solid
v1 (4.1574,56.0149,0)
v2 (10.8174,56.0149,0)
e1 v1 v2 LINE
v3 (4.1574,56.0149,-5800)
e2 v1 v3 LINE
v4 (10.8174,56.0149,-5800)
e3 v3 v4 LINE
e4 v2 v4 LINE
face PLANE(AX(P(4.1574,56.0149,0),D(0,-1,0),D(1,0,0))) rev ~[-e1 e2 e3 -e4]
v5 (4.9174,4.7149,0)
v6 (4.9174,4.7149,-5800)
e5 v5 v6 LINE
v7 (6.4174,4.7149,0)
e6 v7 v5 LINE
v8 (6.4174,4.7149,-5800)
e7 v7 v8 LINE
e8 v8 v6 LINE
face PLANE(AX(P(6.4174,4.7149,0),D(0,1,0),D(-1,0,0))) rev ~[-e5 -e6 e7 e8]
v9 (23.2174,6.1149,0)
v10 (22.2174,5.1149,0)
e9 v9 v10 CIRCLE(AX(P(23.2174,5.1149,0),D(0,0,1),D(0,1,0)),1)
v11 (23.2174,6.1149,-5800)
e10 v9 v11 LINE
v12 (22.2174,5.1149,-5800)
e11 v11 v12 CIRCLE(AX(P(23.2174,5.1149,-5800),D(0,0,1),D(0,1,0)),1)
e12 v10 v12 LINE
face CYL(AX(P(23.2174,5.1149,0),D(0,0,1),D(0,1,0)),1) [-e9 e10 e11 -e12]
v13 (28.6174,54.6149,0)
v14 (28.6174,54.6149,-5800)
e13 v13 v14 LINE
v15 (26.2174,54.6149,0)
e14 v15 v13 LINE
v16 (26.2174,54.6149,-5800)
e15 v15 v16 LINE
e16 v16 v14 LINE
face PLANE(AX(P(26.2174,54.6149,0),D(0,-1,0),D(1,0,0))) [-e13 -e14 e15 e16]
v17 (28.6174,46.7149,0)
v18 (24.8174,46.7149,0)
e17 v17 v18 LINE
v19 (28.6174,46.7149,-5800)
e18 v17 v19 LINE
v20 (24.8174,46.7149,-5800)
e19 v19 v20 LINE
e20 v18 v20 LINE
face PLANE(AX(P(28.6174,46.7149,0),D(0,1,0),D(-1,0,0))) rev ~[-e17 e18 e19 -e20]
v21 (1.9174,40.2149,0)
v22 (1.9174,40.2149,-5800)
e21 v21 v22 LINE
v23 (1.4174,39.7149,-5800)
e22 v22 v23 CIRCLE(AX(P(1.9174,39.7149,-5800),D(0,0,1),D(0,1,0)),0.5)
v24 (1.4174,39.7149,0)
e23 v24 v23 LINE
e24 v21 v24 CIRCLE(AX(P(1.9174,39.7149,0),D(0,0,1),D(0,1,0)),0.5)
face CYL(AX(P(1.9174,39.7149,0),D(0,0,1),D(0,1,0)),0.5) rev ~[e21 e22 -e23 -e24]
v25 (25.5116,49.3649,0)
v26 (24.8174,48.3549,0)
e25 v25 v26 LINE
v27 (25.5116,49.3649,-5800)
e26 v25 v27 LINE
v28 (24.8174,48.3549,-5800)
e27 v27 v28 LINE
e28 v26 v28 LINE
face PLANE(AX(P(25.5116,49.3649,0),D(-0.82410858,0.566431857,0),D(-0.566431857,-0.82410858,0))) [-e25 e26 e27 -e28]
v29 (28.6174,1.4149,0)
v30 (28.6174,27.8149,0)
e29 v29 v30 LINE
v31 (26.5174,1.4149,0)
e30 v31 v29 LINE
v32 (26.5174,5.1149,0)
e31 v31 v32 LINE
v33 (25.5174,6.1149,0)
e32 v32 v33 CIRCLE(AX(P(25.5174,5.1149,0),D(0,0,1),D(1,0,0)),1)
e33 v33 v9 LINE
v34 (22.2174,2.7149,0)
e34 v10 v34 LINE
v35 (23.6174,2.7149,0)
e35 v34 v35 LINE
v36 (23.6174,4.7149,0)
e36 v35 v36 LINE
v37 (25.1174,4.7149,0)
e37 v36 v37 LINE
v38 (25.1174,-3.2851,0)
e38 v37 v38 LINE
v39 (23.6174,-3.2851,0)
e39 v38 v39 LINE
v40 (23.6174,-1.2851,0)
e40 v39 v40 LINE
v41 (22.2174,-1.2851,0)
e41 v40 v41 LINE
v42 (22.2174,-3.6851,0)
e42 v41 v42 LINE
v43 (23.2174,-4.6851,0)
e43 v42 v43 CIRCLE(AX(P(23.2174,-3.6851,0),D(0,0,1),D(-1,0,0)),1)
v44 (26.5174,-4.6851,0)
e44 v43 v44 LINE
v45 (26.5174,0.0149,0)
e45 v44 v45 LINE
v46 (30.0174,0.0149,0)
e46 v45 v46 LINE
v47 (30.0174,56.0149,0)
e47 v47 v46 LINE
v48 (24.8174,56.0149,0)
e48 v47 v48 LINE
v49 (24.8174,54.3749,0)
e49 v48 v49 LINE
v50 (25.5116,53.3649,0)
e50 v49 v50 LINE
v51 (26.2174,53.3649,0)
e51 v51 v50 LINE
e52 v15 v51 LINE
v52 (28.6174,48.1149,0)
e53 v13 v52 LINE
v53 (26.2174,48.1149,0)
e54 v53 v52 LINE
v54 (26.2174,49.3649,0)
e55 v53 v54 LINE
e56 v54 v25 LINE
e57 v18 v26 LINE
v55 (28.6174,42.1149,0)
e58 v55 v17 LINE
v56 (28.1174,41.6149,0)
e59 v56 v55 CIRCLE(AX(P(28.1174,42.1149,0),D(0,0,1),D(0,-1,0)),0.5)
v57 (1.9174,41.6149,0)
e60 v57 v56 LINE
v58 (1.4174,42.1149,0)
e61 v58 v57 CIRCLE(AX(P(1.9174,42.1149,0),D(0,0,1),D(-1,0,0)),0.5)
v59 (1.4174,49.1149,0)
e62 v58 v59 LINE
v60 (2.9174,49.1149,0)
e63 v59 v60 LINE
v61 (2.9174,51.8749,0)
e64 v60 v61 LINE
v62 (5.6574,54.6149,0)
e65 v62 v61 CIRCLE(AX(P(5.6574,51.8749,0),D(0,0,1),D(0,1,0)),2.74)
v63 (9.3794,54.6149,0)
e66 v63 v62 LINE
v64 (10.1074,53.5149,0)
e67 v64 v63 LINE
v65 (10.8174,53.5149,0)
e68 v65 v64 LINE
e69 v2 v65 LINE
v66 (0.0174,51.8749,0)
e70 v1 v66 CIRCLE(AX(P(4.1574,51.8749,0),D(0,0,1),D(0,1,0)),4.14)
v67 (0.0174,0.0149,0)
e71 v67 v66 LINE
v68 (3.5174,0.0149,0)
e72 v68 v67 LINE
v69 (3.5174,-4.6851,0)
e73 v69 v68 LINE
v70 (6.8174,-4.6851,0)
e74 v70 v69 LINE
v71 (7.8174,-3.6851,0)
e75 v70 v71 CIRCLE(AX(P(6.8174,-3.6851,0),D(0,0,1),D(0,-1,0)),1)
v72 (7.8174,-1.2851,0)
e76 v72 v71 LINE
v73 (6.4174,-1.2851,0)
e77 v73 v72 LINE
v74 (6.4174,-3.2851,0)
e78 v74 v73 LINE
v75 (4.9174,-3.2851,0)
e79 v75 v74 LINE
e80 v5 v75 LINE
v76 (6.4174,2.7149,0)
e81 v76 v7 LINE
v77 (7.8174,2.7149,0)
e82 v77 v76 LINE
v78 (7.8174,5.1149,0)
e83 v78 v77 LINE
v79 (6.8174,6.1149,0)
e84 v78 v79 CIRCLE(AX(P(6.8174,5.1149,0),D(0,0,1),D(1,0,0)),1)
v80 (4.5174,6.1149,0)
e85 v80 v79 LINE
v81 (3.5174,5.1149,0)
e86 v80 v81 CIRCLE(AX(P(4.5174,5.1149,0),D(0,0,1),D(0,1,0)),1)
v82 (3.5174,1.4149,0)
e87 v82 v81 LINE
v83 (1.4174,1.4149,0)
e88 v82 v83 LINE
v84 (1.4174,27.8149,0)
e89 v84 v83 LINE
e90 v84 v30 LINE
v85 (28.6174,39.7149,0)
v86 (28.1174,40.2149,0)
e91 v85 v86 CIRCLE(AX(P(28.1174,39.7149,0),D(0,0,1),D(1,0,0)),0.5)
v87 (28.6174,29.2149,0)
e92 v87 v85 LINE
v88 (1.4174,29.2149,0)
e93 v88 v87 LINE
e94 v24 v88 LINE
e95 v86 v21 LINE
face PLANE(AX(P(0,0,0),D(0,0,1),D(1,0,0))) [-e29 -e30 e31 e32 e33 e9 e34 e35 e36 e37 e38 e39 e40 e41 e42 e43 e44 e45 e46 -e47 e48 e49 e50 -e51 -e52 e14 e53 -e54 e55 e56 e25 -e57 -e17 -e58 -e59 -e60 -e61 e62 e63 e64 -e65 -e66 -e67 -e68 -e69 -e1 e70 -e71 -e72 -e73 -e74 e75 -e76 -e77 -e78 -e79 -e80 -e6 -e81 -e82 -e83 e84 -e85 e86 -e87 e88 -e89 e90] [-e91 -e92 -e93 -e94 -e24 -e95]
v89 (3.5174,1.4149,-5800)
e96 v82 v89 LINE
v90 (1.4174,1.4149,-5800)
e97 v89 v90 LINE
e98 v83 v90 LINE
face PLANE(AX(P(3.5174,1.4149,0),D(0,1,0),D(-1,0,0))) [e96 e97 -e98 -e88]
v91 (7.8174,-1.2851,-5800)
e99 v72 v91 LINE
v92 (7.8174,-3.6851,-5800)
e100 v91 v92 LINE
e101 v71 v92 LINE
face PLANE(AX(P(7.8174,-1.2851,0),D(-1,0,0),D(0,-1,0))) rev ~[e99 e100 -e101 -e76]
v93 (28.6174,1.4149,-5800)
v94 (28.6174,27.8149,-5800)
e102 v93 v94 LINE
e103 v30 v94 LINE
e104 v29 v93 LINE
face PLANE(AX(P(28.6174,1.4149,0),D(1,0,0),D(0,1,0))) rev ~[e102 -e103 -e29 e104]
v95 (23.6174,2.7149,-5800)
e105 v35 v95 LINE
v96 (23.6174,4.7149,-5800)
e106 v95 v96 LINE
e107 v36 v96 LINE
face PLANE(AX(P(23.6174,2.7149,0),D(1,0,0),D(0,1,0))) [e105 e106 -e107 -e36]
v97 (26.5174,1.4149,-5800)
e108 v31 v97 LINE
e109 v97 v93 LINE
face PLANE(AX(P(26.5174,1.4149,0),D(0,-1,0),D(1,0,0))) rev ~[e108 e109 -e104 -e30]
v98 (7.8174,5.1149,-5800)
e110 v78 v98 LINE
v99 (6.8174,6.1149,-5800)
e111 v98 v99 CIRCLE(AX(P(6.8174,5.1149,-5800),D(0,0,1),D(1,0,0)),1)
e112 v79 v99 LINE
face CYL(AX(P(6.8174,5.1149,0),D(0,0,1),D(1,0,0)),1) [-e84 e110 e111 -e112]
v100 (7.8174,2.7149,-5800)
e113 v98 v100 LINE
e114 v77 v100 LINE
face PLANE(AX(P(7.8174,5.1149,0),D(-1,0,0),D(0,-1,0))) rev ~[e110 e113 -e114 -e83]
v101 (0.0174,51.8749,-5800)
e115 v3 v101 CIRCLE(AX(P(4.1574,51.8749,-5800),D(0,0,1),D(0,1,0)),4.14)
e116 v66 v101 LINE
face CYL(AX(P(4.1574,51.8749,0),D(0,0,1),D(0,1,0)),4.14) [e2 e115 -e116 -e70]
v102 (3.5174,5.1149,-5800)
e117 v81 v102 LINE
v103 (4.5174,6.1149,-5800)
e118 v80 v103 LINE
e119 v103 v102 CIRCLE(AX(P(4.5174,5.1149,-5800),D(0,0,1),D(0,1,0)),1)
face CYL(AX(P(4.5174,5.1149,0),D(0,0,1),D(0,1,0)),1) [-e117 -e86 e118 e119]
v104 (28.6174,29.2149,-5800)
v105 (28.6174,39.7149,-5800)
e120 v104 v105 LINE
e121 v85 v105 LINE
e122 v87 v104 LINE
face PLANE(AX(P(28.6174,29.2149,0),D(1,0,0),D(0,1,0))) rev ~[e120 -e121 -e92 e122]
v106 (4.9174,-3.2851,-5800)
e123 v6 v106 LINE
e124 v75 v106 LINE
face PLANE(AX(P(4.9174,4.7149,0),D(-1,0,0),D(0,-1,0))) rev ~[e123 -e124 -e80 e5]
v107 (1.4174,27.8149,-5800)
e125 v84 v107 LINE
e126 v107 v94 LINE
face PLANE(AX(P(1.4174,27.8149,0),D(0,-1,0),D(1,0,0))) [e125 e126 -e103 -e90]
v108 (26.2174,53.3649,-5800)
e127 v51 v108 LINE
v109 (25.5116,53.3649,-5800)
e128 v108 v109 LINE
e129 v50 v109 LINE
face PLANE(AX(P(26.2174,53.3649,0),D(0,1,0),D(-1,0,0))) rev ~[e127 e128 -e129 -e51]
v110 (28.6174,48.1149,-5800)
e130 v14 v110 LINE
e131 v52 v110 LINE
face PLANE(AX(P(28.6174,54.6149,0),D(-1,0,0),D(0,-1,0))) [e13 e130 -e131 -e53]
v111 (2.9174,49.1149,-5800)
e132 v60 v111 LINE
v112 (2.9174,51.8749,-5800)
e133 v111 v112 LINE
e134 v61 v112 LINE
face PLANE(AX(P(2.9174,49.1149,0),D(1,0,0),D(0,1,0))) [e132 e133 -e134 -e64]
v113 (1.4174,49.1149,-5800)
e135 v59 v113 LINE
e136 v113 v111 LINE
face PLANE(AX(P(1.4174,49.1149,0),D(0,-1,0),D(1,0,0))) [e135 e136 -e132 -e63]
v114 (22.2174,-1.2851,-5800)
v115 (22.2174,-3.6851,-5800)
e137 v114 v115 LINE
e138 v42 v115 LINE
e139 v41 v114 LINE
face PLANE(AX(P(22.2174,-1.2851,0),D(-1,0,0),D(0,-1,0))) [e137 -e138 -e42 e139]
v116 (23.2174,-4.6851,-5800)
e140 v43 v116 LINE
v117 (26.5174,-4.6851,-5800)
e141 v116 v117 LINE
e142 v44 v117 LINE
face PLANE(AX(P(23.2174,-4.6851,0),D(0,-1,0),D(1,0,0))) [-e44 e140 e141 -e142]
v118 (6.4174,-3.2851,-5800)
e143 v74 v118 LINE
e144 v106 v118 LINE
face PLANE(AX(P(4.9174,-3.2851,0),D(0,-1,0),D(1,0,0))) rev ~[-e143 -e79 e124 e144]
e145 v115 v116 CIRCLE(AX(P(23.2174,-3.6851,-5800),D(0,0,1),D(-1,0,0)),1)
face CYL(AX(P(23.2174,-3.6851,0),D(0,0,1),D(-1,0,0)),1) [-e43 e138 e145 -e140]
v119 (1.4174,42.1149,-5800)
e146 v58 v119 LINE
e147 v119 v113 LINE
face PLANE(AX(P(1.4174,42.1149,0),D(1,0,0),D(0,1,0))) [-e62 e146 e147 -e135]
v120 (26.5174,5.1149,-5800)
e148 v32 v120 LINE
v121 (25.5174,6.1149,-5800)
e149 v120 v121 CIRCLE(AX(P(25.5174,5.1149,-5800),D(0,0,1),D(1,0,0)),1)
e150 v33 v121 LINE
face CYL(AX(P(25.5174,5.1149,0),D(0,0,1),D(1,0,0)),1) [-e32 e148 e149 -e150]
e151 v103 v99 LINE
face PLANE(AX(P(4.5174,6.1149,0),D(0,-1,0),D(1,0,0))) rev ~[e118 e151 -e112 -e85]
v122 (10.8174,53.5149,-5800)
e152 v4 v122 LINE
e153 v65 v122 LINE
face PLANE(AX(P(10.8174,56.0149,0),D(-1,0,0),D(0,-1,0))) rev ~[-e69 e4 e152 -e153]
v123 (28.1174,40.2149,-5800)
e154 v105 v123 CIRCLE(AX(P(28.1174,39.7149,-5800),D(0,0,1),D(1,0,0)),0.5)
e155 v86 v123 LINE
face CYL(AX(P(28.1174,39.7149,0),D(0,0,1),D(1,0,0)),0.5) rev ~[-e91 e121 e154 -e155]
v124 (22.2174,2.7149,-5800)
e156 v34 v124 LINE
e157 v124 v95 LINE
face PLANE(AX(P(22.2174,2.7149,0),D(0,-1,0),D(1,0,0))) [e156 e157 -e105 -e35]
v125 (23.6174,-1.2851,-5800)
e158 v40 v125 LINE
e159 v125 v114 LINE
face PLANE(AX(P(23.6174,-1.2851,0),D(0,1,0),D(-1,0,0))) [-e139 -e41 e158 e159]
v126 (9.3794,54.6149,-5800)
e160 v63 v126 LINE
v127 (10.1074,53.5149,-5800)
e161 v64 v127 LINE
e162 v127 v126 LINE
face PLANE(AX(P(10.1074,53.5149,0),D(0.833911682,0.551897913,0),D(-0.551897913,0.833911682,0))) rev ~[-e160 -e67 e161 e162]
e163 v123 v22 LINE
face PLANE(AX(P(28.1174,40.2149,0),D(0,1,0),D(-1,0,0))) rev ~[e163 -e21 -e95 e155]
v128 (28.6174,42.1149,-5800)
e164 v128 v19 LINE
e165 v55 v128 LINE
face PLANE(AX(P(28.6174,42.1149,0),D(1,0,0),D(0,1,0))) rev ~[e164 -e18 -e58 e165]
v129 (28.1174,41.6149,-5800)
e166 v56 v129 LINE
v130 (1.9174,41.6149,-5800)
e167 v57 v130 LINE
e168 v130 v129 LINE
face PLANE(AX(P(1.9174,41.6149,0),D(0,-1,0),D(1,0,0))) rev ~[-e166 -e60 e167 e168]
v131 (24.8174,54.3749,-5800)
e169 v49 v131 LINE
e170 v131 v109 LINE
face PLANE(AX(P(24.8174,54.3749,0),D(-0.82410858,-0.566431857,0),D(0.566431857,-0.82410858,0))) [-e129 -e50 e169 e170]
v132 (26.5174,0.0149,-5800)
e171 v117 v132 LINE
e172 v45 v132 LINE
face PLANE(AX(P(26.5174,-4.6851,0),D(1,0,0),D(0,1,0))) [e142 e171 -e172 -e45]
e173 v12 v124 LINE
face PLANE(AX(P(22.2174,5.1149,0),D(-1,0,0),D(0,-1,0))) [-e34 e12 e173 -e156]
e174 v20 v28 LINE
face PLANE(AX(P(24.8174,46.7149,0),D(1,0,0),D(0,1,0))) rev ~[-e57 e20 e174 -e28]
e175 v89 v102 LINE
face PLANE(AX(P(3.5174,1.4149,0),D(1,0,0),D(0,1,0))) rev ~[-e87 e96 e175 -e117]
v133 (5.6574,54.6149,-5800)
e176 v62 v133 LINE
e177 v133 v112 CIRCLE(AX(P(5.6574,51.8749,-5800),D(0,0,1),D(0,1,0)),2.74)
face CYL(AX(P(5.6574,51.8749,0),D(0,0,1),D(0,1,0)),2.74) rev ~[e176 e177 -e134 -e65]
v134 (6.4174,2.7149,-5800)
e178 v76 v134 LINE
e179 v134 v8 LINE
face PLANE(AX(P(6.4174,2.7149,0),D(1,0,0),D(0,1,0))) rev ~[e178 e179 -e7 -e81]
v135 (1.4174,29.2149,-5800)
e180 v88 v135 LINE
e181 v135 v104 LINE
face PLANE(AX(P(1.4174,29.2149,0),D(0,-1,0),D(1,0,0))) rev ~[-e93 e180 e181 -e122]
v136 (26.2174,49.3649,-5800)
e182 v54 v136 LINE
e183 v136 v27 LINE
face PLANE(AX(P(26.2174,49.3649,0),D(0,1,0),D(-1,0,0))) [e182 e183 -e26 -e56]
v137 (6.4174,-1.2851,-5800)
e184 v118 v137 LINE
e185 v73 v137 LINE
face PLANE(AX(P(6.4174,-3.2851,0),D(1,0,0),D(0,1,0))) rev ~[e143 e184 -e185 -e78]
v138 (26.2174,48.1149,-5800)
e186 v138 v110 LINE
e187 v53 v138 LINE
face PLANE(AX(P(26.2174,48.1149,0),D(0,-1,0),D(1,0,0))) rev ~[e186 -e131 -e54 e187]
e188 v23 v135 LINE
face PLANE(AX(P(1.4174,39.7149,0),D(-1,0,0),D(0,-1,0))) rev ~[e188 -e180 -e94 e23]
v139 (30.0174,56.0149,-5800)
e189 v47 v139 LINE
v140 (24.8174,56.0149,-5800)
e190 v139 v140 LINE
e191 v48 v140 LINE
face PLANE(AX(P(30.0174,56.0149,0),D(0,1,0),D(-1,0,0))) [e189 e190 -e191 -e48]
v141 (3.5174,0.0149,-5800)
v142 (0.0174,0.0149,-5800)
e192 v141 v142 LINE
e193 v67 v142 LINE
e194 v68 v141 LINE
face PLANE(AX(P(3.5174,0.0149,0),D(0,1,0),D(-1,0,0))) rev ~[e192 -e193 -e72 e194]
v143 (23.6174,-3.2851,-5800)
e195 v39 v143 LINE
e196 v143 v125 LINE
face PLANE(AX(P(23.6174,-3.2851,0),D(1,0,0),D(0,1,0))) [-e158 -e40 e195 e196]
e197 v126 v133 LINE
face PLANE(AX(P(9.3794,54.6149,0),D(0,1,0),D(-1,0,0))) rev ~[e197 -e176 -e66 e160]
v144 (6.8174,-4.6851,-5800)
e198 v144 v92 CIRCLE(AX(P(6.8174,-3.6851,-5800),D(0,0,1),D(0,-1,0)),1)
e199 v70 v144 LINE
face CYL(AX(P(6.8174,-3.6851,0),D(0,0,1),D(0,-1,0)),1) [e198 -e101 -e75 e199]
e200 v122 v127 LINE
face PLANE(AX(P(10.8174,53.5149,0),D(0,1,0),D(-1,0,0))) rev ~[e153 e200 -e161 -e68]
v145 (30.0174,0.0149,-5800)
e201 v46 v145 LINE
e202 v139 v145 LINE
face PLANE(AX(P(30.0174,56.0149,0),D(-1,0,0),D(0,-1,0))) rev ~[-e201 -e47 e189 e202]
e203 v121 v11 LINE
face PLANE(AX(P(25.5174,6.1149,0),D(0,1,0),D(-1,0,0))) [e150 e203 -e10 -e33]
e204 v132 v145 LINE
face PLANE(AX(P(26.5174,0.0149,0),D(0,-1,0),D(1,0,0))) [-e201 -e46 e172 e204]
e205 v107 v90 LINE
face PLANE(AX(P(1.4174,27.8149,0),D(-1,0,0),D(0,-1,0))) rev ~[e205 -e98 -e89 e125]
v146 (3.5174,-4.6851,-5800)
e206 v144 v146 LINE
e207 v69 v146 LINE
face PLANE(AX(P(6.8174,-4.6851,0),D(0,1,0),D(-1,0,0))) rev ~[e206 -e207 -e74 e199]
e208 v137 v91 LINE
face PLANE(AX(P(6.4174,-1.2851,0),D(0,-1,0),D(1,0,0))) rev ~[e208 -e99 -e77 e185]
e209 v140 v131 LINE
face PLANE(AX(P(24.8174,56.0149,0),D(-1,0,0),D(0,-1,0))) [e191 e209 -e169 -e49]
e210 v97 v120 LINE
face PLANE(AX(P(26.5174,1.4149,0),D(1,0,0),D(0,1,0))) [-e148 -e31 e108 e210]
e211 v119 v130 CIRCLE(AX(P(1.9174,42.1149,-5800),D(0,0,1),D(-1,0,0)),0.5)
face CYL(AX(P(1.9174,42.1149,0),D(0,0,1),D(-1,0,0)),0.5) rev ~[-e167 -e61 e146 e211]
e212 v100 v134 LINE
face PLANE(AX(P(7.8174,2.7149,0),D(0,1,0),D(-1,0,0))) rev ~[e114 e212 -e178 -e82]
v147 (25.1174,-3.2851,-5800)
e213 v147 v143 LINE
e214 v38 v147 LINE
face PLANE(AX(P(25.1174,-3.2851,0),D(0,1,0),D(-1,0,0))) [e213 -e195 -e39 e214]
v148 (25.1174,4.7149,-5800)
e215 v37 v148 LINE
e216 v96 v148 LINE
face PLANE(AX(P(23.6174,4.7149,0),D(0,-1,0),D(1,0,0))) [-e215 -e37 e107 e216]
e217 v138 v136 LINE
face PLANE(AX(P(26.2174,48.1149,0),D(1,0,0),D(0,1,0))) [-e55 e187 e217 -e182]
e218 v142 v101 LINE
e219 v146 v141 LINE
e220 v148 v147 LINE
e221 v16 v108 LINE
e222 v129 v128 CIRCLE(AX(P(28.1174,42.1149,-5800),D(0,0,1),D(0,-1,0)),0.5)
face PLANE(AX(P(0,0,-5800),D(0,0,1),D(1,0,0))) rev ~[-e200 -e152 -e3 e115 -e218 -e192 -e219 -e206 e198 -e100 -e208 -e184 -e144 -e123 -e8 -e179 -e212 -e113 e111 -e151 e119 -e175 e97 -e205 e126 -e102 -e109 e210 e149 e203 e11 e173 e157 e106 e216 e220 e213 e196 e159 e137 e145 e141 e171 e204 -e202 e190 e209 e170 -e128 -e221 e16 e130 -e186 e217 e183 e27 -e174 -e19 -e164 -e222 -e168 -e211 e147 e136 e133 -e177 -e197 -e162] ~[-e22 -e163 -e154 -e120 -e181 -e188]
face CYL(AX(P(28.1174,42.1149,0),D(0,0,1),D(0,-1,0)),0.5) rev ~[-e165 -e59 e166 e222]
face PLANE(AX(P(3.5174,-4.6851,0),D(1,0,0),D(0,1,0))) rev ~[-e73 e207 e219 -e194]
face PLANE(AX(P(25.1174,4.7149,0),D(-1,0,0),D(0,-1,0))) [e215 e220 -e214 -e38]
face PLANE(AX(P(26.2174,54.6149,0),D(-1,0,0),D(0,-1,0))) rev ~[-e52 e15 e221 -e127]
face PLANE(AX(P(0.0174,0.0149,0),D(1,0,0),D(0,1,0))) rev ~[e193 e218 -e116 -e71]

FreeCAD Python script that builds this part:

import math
import FreeCAD as App
import Part
import Sketcher

doc = App.newDocument("Part")
body = doc.addObject("PartDesign::Body", "Body")

sketch1 = body.newObject("Sketcher::SketchObject", "Sketch")
sketch1.AttachmentSupport = (doc.getObject("XY_Plane"), [""])
sketch1.MapMode = "FlatFace"
sketch1.addGeometry(Part.LineSegment(App.Vector(28.1, 41.6, 0), App.Vector(1.9, 41.6, 0)), False)
sketch1.addGeometry(Part.ArcOfCircle(Part.Circle(App.Vector(1.9, 42.1, 0), App.Vector(0, 0, 1), 0.5), math.radians(180), math.radians(270)), False)
sketch1.addGeometry(Part.LineSegment(App.Vector(1.4, 42.1, 0), App.Vector(1.4, 49.1, 0)), False)
sketch1.addGeometry(Part.LineSegment(App.Vector(1.4, 49.1, 0), App.Vector(2.9, 49.1, 0)), False)
sketch1.addGeometry(Part.LineSegment(App.Vector(2.9, 49.1, 0), App.Vector(2.9, 51.9, 0)), False)
sketch1.addGeometry(Part.ArcOfCircle(Part.Circle(App.Vector(5.7, 51.9, 0), App.Vector(0, 0, 1), 2.7), math.radians(90), math.radians(180)), False)
sketch1.addGeometry(Part.LineSegment(App.Vector(5.7, 54.6, 0), App.Vector(9.4, 54.6, 0)), False)
sketch1.addGeometry(Part.LineSegment(App.Vector(9.4, 54.6, 0), App.Vector(10.1, 53.5, 0)), False)
sketch1.addGeometry(Part.LineSegment(App.Vector(10.1, 53.5, 0), App.Vector(10.8, 53.5, 0)), False)
sketch1.addGeometry(Part.LineSegment(App.Vector(10.8, 53.5, 0), App.Vector(10.8, 56, 0)), False)
sketch1.addGeometry(Part.LineSegment(App.Vector(10.8, 56, 0), App.Vector(4.2, 56, 0)), False)
sketch1.addGeometry(Part.ArcOfCircle(Part.Circle(App.Vector(4.2, 51.9, 0), App.Vector(0, 0, 1), 4.1), math.radians(90), math.radians(180)), False)
sketch1.addGeometry(Part.LineSegment(App.Vector(0, 51.9, 0), App.Vector(0, 0, 0)), False)
sketch1.addGeometry(Part.LineSegment(App.Vector(0, 0, 0), App.Vector(3.5, 0, 0)), False)
sketch1.addGeometry(Part.LineSegment(App.Vector(3.5, 0, 0), App.Vector(3.5, -4.7, 0)), False)
sketch1.addGeometry(Part.LineSegment(App.Vector(3.5, -4.7, 0), App.Vector(6.8, -4.7, 0)), False)
sketch1.addGeometry(Part.ArcOfCircle(Part.Circle(App.Vector(6.8, -3.7, 0), App.Vector(0, 0, 1), 1), math.radians(-90), math.radians(0)), False)
sketch1.addGeometry(Part.LineSegment(App.Vector(7.8, -3.7, 0), App.Vector(7.8, -1.3, 0)), False)
sketch1.addGeometry(Part.LineSegment(App.Vector(7.8, -1.3, 0), App.Vector(6.4, -1.3, 0)), False)
sketch1.addGeometry(Part.LineSegment(App.Vector(6.4, -1.3, 0), App.Vector(6.4, -3.3, 0)), False)
sketch1.addGeometry(Part.LineSegment(App.Vector(6.4, -3.3, 0), App.Vector(4.9, -3.3, 0)), False)
sketch1.addGeometry(Part.LineSegment(App.Vector(4.9, -3.3, 0), App.Vector(4.9, 4.7, 0)), False)
sketch1.addGeometry(Part.LineSegment(App.Vector(4.9, 4.7, 0), App.Vector(6.4, 4.7, 0)), False)
sketch1.addGeometry(Part.LineSegment(App.Vector(6.4, 4.7, 0), App.Vector(6.4, 2.7, 0)), False)
sketch1.addGeometry(Part.LineSegment(App.Vector(6.4, 2.7, 0), App.Vector(7.8, 2.7, 0)), False)
sketch1.addGeometry(Part.LineSegment(App.Vector(7.8, 2.7, 0), App.Vector(7.8, 5.1, 0)), False)
sketch1.addGeometry(Part.ArcOfCircle(Part.Circle(App.Vector(6.8, 5.1, 0), App.Vector(0, 0, 1), 1), math.radians(0), math.radians(90)), False)
sketch1.addGeometry(Part.LineSegment(App.Vector(6.8, 6.1, 0), App.Vector(4.5, 6.1, 0)), False)
sketch1.addGeometry(Part.ArcOfCircle(Part.Circle(App.Vector(4.5, 5.1, 0), App.Vector(0, 0, 1), 1), math.radians(90), math.radians(180)), False)
sketch1.addGeometry(Part.LineSegment(App.Vector(3.5, 5.1, 0), App.Vector(3.5, 1.4, 0)), False)
sketch1.addGeometry(Part.LineSegment(App.Vector(3.5, 1.4, 0), App.Vector(1.4, 1.4, 0)), False)
sketch1.addGeometry(Part.LineSegment(App.Vector(1.4, 1.4, 0), App.Vector(1.4, 27.8, 0)), False)
sketch1.addGeometry(Part.LineSegment(App.Vector(1.4, 27.8, 0), App.Vector(28.6, 27.8, 0)), False)
sketch1.addGeometry(Part.LineSegment(App.Vector(28.6, 27.8, 0), App.Vector(28.6, 1.4, 0)), False)
sketch1.addGeometry(Part.LineSegment(App.Vector(28.6, 1.4, 0), App.Vector(26.5, 1.4, 0)), False)
sketch1.addGeometry(Part.LineSegment(App.Vector(26.5, 1.4, 0), App.Vector(26.5, 5.1, 0)), False)
sketch1.addGeometry(Part.ArcOfCircle(Part.Circle(App.Vector(25.5, 5.1, 0), App.Vector(0, 0, 1), 1), math.radians(0), math.radians(90)), False)
sketch1.addGeometry(Part.LineSegment(App.Vector(25.5, 6.1, 0), App.Vector(23.2, 6.1, 0)), False)
sketch1.addGeometry(Part.ArcOfCircle(Part.Circle(App.Vector(23.2, 5.1, 0), App.Vector(0, 0, 1), 1), math.radians(90), math.radians(180)), False)
sketch1.addGeometry(Part.LineSegment(App.Vector(22.2, 5.1, 0), App.Vector(22.2, 2.7, 0)), False)
sketch1.addGeometry(Part.LineSegment(App.Vector(22.2, 2.7, 0), App.Vector(23.6, 2.7, 0)), False)
sketch1.addGeometry(Part.LineSegment(App.Vector(23.6, 2.7, 0), App.Vector(23.6, 4.7, 0)), False)
sketch1.addGeometry(Part.LineSegment(App.Vector(23.6, 4.7, 0), App.Vector(25.1, 4.7, 0)), False)
sketch1.addGeometry(Part.LineSegment(App.Vector(25.1, 4.7, 0), App.Vector(25.1, -3.3, 0)), False)
sketch1.addGeometry(Part.LineSegment(App.Vector(25.1, -3.3, 0), App.Vector(23.6, -3.3, 0)), False)
sketch1.addGeometry(Part.LineSegment(App.Vector(23.6, -3.3, 0), App.Vector(23.6, -1.3, 0)), False)
sketch1.addGeometry(Part.LineSegment(App.Vector(23.6, -1.3, 0), App.Vector(22.2, -1.3, 0)), False)
sketch1.addGeometry(Part.LineSegment(App.Vector(22.2, -1.3, 0), App.Vector(22.2, -3.7, 0)), False)
sketch1.addGeometry(Part.ArcOfCircle(Part.Circle(App.Vector(23.2, -3.7, 0), App.Vector(0, 0, 1), 1), math.radians(180), math.radians(270)), False)
sketch1.addGeometry(Part.LineSegment(App.Vector(23.2, -4.7, 0), App.Vector(26.5, -4.7, 0)), False)
sketch1.addGeometry(Part.LineSegment(App.Vector(26.5, -4.7, 0), App.Vector(26.5, 0, 0)), False)
sketch1.addGeometry(Part.LineSegment(App.Vector(26.5, 0, 0), App.Vector(30, 0, 0)), False)
sketch1.addGeometry(Part.LineSegment(App.Vector(30, 0, 0), App.Vector(30, 56, 0)), False)
sketch1.addGeometry(Part.LineSegment(App.Vector(30, 56, 0), App.Vector(24.8, 56, 0)), False)
sketch1.addGeometry(Part.LineSegment(App.Vector(24.8, 56, 0), App.Vector(24.8, 54.4, 0)), False)
sketch1.addGeometry(Part.LineSegment(App.Vector(24.8, 54.4, 0), App.Vector(25.5, 53.4, 0)), False)
sketch1.addGeometry(Part.LineSegment(App.Vector(25.5, 53.4, 0), App.Vector(26.2, 53.4, 0)), False)
sketch1.addGeometry(Part.LineSegment(App.Vector(26.2, 53.4, 0), App.Vector(26.2, 54.6, 0)), False)
sketch1.addGeometry(Part.LineSegment(App.Vector(26.2, 54.6, 0), App.Vector(28.6, 54.6, 0)), False)
sketch1.addGeometry(Part.LineSegment(App.Vector(28.6, 54.6, 0), App.Vector(28.6, 48.1, 0)), False)
sketch1.addGeometry(Part.LineSegment(App.Vector(28.6, 48.1, 0), App.Vector(26.2, 48.1, 0)), False)
sketch1.addGeometry(Part.LineSegment(App.Vector(26.2, 48.1, 0), App.Vector(26.2, 49.4, 0)), False)
sketch1.addGeometry(Part.LineSegment(App.Vector(26.2, 49.4, 0), App.Vector(25.5, 49.4, 0)), False)
sketch1.addGeometry(Part.LineSegment(App.Vector(25.5, 49.4, 0), App.Vector(24.8, 48.4, 0)), False)
sketch1.addGeometry(Part.LineSegment(App.Vector(24.8, 48.4, 0), App.Vector(24.8, 46.7, 0)), False)
sketch1.addGeometry(Part.LineSegment(App.Vector(24.8, 46.7, 0), App.Vector(28.6, 46.7, 0)), False)
sketch1.addGeometry(Part.LineSegment(App.Vector(28.6, 46.7, 0), App.Vector(28.6, 42.1, 0)), False)
sketch1.addGeometry(Part.ArcOfCircle(Part.Circle(App.Vector(28.1, 42.1, 0), App.Vector(0, 0, 1), 0.5), math.radians(-90), math.radians(0)), False)
sketch1.addGeometry(Part.LineSegment(App.Vector(1.9, 40.2, 0), App.Vector(28.1, 40.2, 0)), False)
sketch1.addGeometry(Part.ArcOfCircle(Part.Circle(App.Vector(28.1, 39.7, 0), App.Vector(0, 0, 1), 0.5), math.radians(0), math.radians(90)), False)
sketch1.addGeometry(Part.LineSegment(App.Vector(28.6, 39.7, 0), App.Vector(28.6, 29.2, 0)), False)
sketch1.addGeometry(Part.LineSegment(App.Vector(28.6, 29.2, 0), App.Vector(1.4, 29.2, 0)), False)
sketch1.addGeometry(Part.LineSegment(App.Vector(1.4, 29.2, 0), App.Vector(1.4, 39.7, 0)), False)
sketch1.addGeometry(Part.ArcOfCircle(Part.Circle(App.Vector(1.9, 39.7, 0), App.Vector(0, 0, 1), 0.5), math.radians(90), math.radians(180)), False)
sketch1.addConstraint(Sketcher.Constraint("Tangent", 0, 2, 1, 2))
sketch1.addConstraint(Sketcher.Constraint("Tangent", 1, 1, 2, 1))
sketch1.addConstraint(Sketcher.Constraint("Coincident", 2, 2, 3, 1))
sketch1.addConstraint(Sketcher.Constraint("Coincident", 3, 2, 4, 1))
sketch1.addConstraint(Sketcher.Constraint("Tangent", 4, 2, 5, 2))
sketch1.addConstraint(Sketcher.Constraint("Tangent", 5, 1, 6, 1))
sketch1.addConstraint(Sketcher.Constraint("Coincident", 6, 2, 7, 1))
sketch1.addConstraint(Sketcher.Constraint("Coincident", 7, 2, 8, 1))
sketch1.addConstraint(Sketcher.Constraint("Coincident", 8, 2, 9, 1))
sketch1.addConstraint(Sketcher.Constraint("Coincident", 9, 2, 10, 1))
sketch1.addConstraint(Sketcher.Constraint("Tangent", 10, 2, 11, 1))
sketch1.addConstraint(Sketcher.Constraint("Tangent", 11, 2, 12, 1))
sketch1.addConstraint(Sketcher.Constraint("Coincident", 12, 2, 13, 1))
sketch1.addConstraint(Sketcher.Constraint("Coincident", 13, 2, 14, 1))
sketch1.addConstraint(Sketcher.Constraint("Coincident", 14, 2, 15, 1))
sketch1.addConstraint(Sketcher.Constraint("Tangent", 15, 2, 16, 1))
sketch1.addConstraint(Sketcher.Constraint("Tangent", 16, 2, 17, 1))
sketch1.addConstraint(Sketcher.Constraint("Coincident", 17, 2, 18, 1))
sketch1.addConstraint(Sketcher.Constraint("Coincident", 18, 2, 19, 1))
sketch1.addConstraint(Sketcher.Constraint("Coincident", 19, 2, 20, 1))
sketch1.addConstraint(Sketcher.Constraint("Coincident", 20, 2, 21, 1))
sketch1.addConstraint(Sketcher.Constraint("Coincident", 21, 2, 22, 1))
sketch1.addConstraint(Sketcher.Constraint("Coincident", 22, 2, 23, 1))
sketch1.addConstraint(Sketcher.Constraint("Coincident", 23, 2, 24, 1))
sketch1.addConstraint(Sketcher.Constraint("Coincident", 24, 2, 25, 1))
sketch1.addConstraint(Sketcher.Constraint("Tangent", 25, 2, 26, 1))
sketch1.addConstraint(Sketcher.Constraint("Tangent", 26, 2, 27, 1))
sketch1.addConstraint(Sketcher.Constraint("Tangent", 27, 2, 28, 1))
sketch1.addConstraint(Sketcher.Constraint("Tangent", 28, 2, 29, 1))
sketch1.addConstraint(Sketcher.Constraint("Coincident", 29, 2, 30, 1))
sketch1.addConstraint(Sketcher.Constraint("Coincident", 30, 2, 31, 1))
sketch1.addConstraint(Sketcher.Constraint("Coincident", 31, 2, 32, 1))
sketch1.addConstraint(Sketcher.Constraint("Coincident", 32, 2, 33, 1))
sketch1.addConstraint(Sketcher.Constraint("Coincident", 33, 2, 34, 1))
sketch1.addConstraint(Sketcher.Constraint("Coincident", 34, 2, 35, 1))
sketch1.addConstraint(Sketcher.Constraint("Tangent", 35, 2, 36, 1))
sketch1.addConstraint(Sketcher.Constraint("Tangent", 36, 2, 37, 1))
sketch1.addConstraint(Sketcher.Constraint("Tangent", 37, 2, 38, 1))
sketch1.addConstraint(Sketcher.Constraint("Tangent", 38, 2, 39, 1))
sketch1.addConstraint(Sketcher.Constraint("Coincident", 39, 2, 40, 1))
sketch1.addConstraint(Sketcher.Constraint("Coincident", 40, 2, 41, 1))
sketch1.addConstraint(Sketcher.Constraint("Coincident", 41, 2, 42, 1))
sketch1.addConstraint(Sketcher.Constraint("Coincident", 42, 2, 43, 1))
sketch1.addConstraint(Sketcher.Constraint("Coincident", 43, 2, 44, 1))
sketch1.addConstraint(Sketcher.Constraint("Coincident", 44, 2, 45, 1))
sketch1.addConstraint(Sketcher.Constraint("Coincident", 45, 2, 46, 1))
sketch1.addConstraint(Sketcher.Constraint("Coincident", 46, 2, 47, 1))
sketch1.addConstraint(Sketcher.Constraint("Tangent", 47, 2, 48, 1))
sketch1.addConstraint(Sketcher.Constraint("Tangent", 48, 2, 49, 1))
sketch1.addConstraint(Sketcher.Constraint("Coincident", 49, 2, 50, 1))
sketch1.addConstraint(Sketcher.Constraint("Coincident", 50, 2, 51, 1))
sketch1.addConstraint(Sketcher.Constraint("Coincident", 51, 2, 52, 1))
sketch1.addConstraint(Sketcher.Constraint("Coincident", 52, 2, 53, 1))
sketch1.addConstraint(Sketcher.Constraint("Coincident", 53, 2, 54, 1))
sketch1.addConstraint(Sketcher.Constraint("Coincident", 54, 2, 55, 1))
sketch1.addConstraint(Sketcher.Constraint("Coincident", 55, 2, 56, 1))
sketch1.addConstraint(Sketcher.Constraint("Coincident", 56, 2, 57, 1))
sketch1.addConstraint(Sketcher.Constraint("Coincident", 57, 2, 58, 1))
sketch1.addConstraint(Sketcher.Constraint("Coincident", 58, 2, 59, 1))
sketch1.addConstraint(Sketcher.Constraint("Coincident", 59, 2, 60, 1))
sketch1.addConstraint(Sketcher.Constraint("Coincident", 60, 2, 61, 1))
sketch1.addConstraint(Sketcher.Constraint("Coincident", 61, 2, 62, 1))
sketch1.addConstraint(Sketcher.Constraint("Coincident", 62, 2, 63, 1))
sketch1.addConstraint(Sketcher.Constraint("Coincident", 63, 2, 64, 1))
sketch1.addConstraint(Sketcher.Constraint("Coincident", 64, 2, 65, 1))
sketch1.addConstraint(Sketcher.Constraint("Coincident", 65, 2, 66, 1))
sketch1.addConstraint(Sketcher.Constraint("Tangent", 66, 2, 67, 2))
sketch1.addConstraint(Sketcher.Constraint("Tangent", 67, 1, 0, 1))
sketch1.addConstraint(Sketcher.Constraint("Tangent", 68, 2, 69, 2))
sketch1.addConstraint(Sketcher.Constraint("Tangent", 69, 1, 70, 1))
sketch1.addConstraint(Sketcher.Constraint("Coincident", 70, 2, 71, 1))
sketch1.addConstraint(Sketcher.Constraint("Coincident", 71, 2, 72, 1))
sketch1.addConstraint(Sketcher.Constraint("Tangent", 72, 2, 73, 2))
sketch1.addConstraint(Sketcher.Constraint("Tangent", 73, 1, 68, 1))
sketch1.addConstraint(Sketcher.Constraint("Horizontal", 0))
sketch1.addConstraint(Sketcher.Constraint("Vertical", 2))
sketch1.addConstraint(Sketcher.Constraint("Horizontal", 3))
sketch1.addConstraint(Sketcher.Constraint("Vertical", 4))
sketch1.addConstraint(Sketcher.Constraint("Horizontal", 6))
sketch1.addConstraint(Sketcher.Constraint("Horizontal", 8))
sketch1.addConstraint(Sketcher.Constraint("Vertical", 9))
sketch1.addConstraint(Sketcher.Constraint("Horizontal", 10))
sketch1.addConstraint(Sketcher.Constraint("Vertical", 12))
sketch1.addConstraint(Sketcher.Constraint("Horizontal", 13))
sketch1.addConstraint(Sketcher.Constraint("Vertical", 14))
sketch1.addConstraint(Sketcher.Constraint("Horizontal", 15))
sketch1.addConstraint(Sketcher.Constraint("Vertical", 17))
sketch1.addConstraint(Sketcher.Constraint("Horizontal", 18))
sketch1.addConstraint(Sketcher.Constraint("Vertical", 19))
sketch1.addConstraint(Sketcher.Constraint("Horizontal", 20))
sketch1.addConstraint(Sketcher.Constraint("Vertical", 21))
sketch1.addConstraint(Sketcher.Constraint("Horizontal", 22))
sketch1.addConstraint(Sketcher.Constraint("Vertical", 23))
sketch1.addConstraint(Sketcher.Constraint("Horizontal", 24))
sketch1.addConstraint(Sketcher.Constraint("Vertical", 25))
sketch1.addConstraint(Sketcher.Constraint("Horizontal", 27))
sketch1.addConstraint(Sketcher.Constraint("Vertical", 29))
sketch1.addConstraint(Sketcher.Constraint("Horizontal", 30))
sketch1.addConstraint(Sketcher.Constraint("Vertical", 31))
sketch1.addConstraint(Sketcher.Constraint("Horizontal", 32))
sketch1.addConstraint(Sketcher.Constraint("Vertical", 33))
sketch1.addConstraint(Sketcher.Constraint("Horizontal", 34))
sketch1.addConstraint(Sketcher.Constraint("Vertical", 35))
sketch1.addConstraint(Sketcher.Constraint("Horizontal", 37))
sketch1.addConstraint(Sketcher.Constraint("Vertical", 39))
sketch1.addConstraint(Sketcher.Constraint("Horizontal", 40))
sketch1.addConstraint(Sketcher.Constraint("Vertical", 41))
sketch1.addConstraint(Sketcher.Constraint("Horizontal", 42))
sketch1.addConstraint(Sketcher.Constraint("Vertical", 43))
sketch1.addConstraint(Sketcher.Constraint("Horizontal", 44))
sketch1.addConstraint(Sketcher.Constraint("Vertical", 45))
sketch1.addConstraint(Sketcher.Constraint("Horizontal", 46))
sketch1.addConstraint(Sketcher.Constraint("Vertical", 47))
sketch1.addConstraint(Sketcher.Constraint("Horizontal", 49))
sketch1.addConstraint(Sketcher.Constraint("Vertical", 50))
sketch1.addConstraint(Sketcher.Constraint("Horizontal", 51))
sketch1.addConstraint(Sketcher.Constraint("Vertical", 52))
sketch1.addConstraint(Sketcher.Constraint("Horizontal", 53))
sketch1.addConstraint(Sketcher.Constraint("Vertical", 54))
sketch1.addConstraint(Sketcher.Constraint("Horizontal", 56))
sketch1.addConstraint(Sketcher.Constraint("Vertical", 57))
sketch1.addConstraint(Sketcher.Constraint("Horizontal", 58))
sketch1.addConstraint(Sketcher.Constraint("Vertical", 59))
sketch1.addConstraint(Sketcher.Constraint("Horizontal", 60))
sketch1.addConstraint(Sketcher.Constraint("Vertical", 61))
sketch1.addConstraint(Sketcher.Constraint("Horizontal", 62))
sketch1.addConstraint(Sketcher.Constraint("Vertical", 64))
sketch1.addConstraint(Sketcher.Constraint("Horizontal", 65))
sketch1.addConstraint(Sketcher.Constraint("Vertical", 66))
sketch1.addConstraint(Sketcher.Constraint("Horizontal", 68))
sketch1.addConstraint(Sketcher.Constraint("Vertical", 70))
sketch1.addConstraint(Sketcher.Constraint("Horizontal", 71))
sketch1.addConstraint(Sketcher.Constraint("Vertical", 72))
sketch1.addConstraint(Sketcher.Constraint("Equal", 16, 26))
sketch1.addConstraint(Sketcher.Constraint("Equal", 26, 28))
sketch1.addConstraint(Sketcher.Constraint("Equal", 28, 36))
sketch1.addConstraint(Sketcher.Constraint("Equal", 36, 38))
sketch1.addConstraint(Sketcher.Constraint("Equal", 38, 48))
sketch1.addConstraint(Sketcher.Constraint("Equal", 1, 67))
sketch1.addConstraint(Sketcher.Constraint("Equal", 67, 69))
sketch1.addConstraint(Sketcher.Constraint("Equal", 69, 73))
sketch1.addConstraint(Sketcher.Constraint("Horizontal", 5, 3, 11, 3))
sketch1.addConstraint(Sketcher.Constraint("Horizontal", 28, 3, 36, 3))
sketch1.addConstraint(Sketcher.Constraint("Horizontal", 16, 3, 48, 3))
sketch1.addConstraint(Sketcher.Constraint("Horizontal", 30, 2, 33, 2))
sketch1.addConstraint(Sketcher.Constraint("Horizontal", 24, 2, 39, 2))
sketch1.addConstraint(Sketcher.Constraint("Horizontal", 22, 2, 41, 2))
sketch1.addConstraint(Sketcher.Constraint("Horizontal", 20, 2, 43, 2))
sketch1.addConstraint(Sketcher.Constraint("Horizontal", 18, 2, 45, 2))
sketch1.addConstraint(Sketcher.Constraint("Horizontal", 13, 2, 50, 2))
sketch1.addConstraint(Sketcher.Constraint("Horizontal", 10, 2, 52, 2))
sketch1.addConstraint(Sketcher.Constraint("Horizontal", 6, 2, 57, 2))
sketch1.addConstraint(Sketcher.Constraint("Vertical", 16, 3, 26, 3))
sketch1.addConstraint(Sketcher.Constraint("Vertical", 38, 3, 48, 3))
sketch1.addConstraint(Sketcher.Constraint("Vertical", 67, 3, 69, 3))
sketch1.addConstraint(Sketcher.Constraint("Vertical", 1, 3, 73, 3))
sketch1.addConstraint(Sketcher.Constraint("Vertical", 19, 2, 22, 2))
sketch1.addConstraint(Sketcher.Constraint("Vertical", 14, 2, 28, 2))
sketch1.addConstraint(Sketcher.Constraint("Vertical", 2, 2, 30, 2))
sketch1.addConstraint(Sketcher.Constraint("Vertical", 41, 2, 44, 2))
sketch1.addConstraint(Sketcher.Constraint("Vertical", 35, 2, 49, 2))
sketch1.addConstraint(Sketcher.Constraint("Vertical", 33, 2, 58, 2))
sketch1.addConstraint(Sketcher.Constraint("Vertical", 57, 2, 60, 2))
sketch1.addConstraint(Sketcher.Constraint("Vertical", 55, 2, 62, 2))
sketch1.addConstraint(Sketcher.Constraint("Vertical", 54, 2, 63, 2))
sketch1.addConstraint(Sketcher.Constraint("Vertical", 59, 2, 65, 2))
sketch1.addConstraint(Sketcher.Constraint("Equal", 3, 20))
sketch1.addConstraint(Sketcher.Constraint("Equal", 30, 34))
sketch1.addConstraint(Sketcher.Constraint("Equal", 27, 37))
sketch1.addConstraint(Sketcher.Constraint("Equal", 24, 40))
sketch1.addConstraint(Sketcher.Constraint("Equal", 22, 42))
sketch1.addConstraint(Sketcher.Constraint("Equal", 13, 51))
sketch1.addConstraint(Sketcher.Constraint("Equal", 60, 17))
sketch1.addConstraint(Sketcher.Constraint("Equal", 19, 23))
sketch1.addConstraint(Sketcher.Constraint("Equal", 17, 25))
sketch1.addConstraint(Sketcher.Constraint("Equal", 57, 61))
sketch1.addConstraint(Sketcher.Constraint("Equal", 54, 64))
sketch1.addConstraint(Sketcher.Constraint("Equal", 55, 63))
sketch1.addConstraint(Sketcher.Constraint("Radius", 16, 1.0))
sketch1.addConstraint(Sketcher.Constraint("Radius", 1, 0.5))
sketch1.addConstraint(Sketcher.Constraint("DistanceY", 19, 2, 19, 1, 2.0))
sketch1.addConstraint(Sketcher.Constraint("DistanceY", 21, 1, 21, 2, 8.0))
sketch1.addConstraint(Sketcher.Constraint("DistanceY", 52, 1, 52, 2, 56.0))
sketch1.addConstraint(Sketcher.Constraint("Radius", 5, 2.74))
sketch1.addConstraint(Sketcher.Constraint("Radius", 11, 4.14))
sketch1.addConstraint(Sketcher.Constraint("DistanceX", 3, 1, 3, 2, 1.5))
sketch1.addConstraint(Sketcher.Constraint("DistanceX", 13, 1, 13, 2, 3.5))
sketch1.addConstraint(Sketcher.Constraint("DistanceX", 18, 2, 18, 1, 1.4))
sketch1.addConstraint(Sketcher.Constraint("DistanceX", 32, 1, 32, 2, 27.2))
sketch1.addConstraint(Sketcher.Constraint("DistanceX", 58, 1, 58, 2, 2.4))
sketch1.addConstraint(Sketcher.Constraint("DistanceY", 9, 1, 9, 2, 2.5))
sketch1.addConstraint(Sketcher.Constraint("DistanceY", 14, 2, 14, 1, 4.7))
sketch1.addConstraint(Sketcher.Constraint("DistanceY", 59, 2, 59, 1, 6.5))
sketch1.addConstraint(Sketcher.Constraint("DistanceX", 8, 1, 8, 2, 0.71))
sketch1.addConstraint(Sketcher.Constraint("DistanceY", 2, 1, 2, 2, 7.0))
sketch1.addConstraint(Sketcher.Constraint("DistanceX", 15, 1, 15, 2, 3.3))
sketch1.addConstraint(Sketcher.Constraint("DistanceX", 30, 2, 30, 1, 2.1))
sketch1.addConstraint(Sketcher.Constraint("DistanceX", 53, 2, 53, 1, 5.2))
sketch1.addConstraint(Sketcher.Constraint("DistanceX", 56, 1, 56, 2, 0.7058))
sketch1.addConstraint(Sketcher.Constraint("DistanceY", 29, 2, 29, 1, 3.7))
sketch1.addConstraint(Sketcher.Constraint("DistanceY", 31, 1, 31, 2, 26.4))
sketch1.addConstraint(Sketcher.Constraint("DistanceY", 66, 2, 66, 1, 4.6))
sketch1.addConstraint(Sketcher.Constraint("DistanceY", 70, 2, 70, 1, 10.5))
sketch1.addConstraint(Sketcher.Constraint("DistanceX", 10, 2, 10, 1, 6.66))
sketch1.addConstraint(Sketcher.Constraint("DistanceY", 54, 2, 54, 1, 1.64))
sketch1.addConstraint(Sketcher.Constraint("DistanceY", 57, 1, 57, 2, 1.25))
sketch1.addConstraint(Sketcher.Constraint("DistanceX", 6, 1, 6, 2, 3.722))
sketch1.addConstraint(Sketcher.Constraint("DistanceY", -1, 1, 1, 3, 42.115))
sketch1.addConstraint(Sketcher.Constraint("DistanceY", -1, 1, 69, 3, 39.715))
sketch1.addConstraint(Sketcher.Constraint("DistanceX", -1, 1, 1, 3, 1.9174))
pad1 = body.newObject("PartDesign::Pad", "Pad")
pad1.Profile = sketch1
pad1.Length = 5800
pad1.Reversed = True

doc.recompute()
